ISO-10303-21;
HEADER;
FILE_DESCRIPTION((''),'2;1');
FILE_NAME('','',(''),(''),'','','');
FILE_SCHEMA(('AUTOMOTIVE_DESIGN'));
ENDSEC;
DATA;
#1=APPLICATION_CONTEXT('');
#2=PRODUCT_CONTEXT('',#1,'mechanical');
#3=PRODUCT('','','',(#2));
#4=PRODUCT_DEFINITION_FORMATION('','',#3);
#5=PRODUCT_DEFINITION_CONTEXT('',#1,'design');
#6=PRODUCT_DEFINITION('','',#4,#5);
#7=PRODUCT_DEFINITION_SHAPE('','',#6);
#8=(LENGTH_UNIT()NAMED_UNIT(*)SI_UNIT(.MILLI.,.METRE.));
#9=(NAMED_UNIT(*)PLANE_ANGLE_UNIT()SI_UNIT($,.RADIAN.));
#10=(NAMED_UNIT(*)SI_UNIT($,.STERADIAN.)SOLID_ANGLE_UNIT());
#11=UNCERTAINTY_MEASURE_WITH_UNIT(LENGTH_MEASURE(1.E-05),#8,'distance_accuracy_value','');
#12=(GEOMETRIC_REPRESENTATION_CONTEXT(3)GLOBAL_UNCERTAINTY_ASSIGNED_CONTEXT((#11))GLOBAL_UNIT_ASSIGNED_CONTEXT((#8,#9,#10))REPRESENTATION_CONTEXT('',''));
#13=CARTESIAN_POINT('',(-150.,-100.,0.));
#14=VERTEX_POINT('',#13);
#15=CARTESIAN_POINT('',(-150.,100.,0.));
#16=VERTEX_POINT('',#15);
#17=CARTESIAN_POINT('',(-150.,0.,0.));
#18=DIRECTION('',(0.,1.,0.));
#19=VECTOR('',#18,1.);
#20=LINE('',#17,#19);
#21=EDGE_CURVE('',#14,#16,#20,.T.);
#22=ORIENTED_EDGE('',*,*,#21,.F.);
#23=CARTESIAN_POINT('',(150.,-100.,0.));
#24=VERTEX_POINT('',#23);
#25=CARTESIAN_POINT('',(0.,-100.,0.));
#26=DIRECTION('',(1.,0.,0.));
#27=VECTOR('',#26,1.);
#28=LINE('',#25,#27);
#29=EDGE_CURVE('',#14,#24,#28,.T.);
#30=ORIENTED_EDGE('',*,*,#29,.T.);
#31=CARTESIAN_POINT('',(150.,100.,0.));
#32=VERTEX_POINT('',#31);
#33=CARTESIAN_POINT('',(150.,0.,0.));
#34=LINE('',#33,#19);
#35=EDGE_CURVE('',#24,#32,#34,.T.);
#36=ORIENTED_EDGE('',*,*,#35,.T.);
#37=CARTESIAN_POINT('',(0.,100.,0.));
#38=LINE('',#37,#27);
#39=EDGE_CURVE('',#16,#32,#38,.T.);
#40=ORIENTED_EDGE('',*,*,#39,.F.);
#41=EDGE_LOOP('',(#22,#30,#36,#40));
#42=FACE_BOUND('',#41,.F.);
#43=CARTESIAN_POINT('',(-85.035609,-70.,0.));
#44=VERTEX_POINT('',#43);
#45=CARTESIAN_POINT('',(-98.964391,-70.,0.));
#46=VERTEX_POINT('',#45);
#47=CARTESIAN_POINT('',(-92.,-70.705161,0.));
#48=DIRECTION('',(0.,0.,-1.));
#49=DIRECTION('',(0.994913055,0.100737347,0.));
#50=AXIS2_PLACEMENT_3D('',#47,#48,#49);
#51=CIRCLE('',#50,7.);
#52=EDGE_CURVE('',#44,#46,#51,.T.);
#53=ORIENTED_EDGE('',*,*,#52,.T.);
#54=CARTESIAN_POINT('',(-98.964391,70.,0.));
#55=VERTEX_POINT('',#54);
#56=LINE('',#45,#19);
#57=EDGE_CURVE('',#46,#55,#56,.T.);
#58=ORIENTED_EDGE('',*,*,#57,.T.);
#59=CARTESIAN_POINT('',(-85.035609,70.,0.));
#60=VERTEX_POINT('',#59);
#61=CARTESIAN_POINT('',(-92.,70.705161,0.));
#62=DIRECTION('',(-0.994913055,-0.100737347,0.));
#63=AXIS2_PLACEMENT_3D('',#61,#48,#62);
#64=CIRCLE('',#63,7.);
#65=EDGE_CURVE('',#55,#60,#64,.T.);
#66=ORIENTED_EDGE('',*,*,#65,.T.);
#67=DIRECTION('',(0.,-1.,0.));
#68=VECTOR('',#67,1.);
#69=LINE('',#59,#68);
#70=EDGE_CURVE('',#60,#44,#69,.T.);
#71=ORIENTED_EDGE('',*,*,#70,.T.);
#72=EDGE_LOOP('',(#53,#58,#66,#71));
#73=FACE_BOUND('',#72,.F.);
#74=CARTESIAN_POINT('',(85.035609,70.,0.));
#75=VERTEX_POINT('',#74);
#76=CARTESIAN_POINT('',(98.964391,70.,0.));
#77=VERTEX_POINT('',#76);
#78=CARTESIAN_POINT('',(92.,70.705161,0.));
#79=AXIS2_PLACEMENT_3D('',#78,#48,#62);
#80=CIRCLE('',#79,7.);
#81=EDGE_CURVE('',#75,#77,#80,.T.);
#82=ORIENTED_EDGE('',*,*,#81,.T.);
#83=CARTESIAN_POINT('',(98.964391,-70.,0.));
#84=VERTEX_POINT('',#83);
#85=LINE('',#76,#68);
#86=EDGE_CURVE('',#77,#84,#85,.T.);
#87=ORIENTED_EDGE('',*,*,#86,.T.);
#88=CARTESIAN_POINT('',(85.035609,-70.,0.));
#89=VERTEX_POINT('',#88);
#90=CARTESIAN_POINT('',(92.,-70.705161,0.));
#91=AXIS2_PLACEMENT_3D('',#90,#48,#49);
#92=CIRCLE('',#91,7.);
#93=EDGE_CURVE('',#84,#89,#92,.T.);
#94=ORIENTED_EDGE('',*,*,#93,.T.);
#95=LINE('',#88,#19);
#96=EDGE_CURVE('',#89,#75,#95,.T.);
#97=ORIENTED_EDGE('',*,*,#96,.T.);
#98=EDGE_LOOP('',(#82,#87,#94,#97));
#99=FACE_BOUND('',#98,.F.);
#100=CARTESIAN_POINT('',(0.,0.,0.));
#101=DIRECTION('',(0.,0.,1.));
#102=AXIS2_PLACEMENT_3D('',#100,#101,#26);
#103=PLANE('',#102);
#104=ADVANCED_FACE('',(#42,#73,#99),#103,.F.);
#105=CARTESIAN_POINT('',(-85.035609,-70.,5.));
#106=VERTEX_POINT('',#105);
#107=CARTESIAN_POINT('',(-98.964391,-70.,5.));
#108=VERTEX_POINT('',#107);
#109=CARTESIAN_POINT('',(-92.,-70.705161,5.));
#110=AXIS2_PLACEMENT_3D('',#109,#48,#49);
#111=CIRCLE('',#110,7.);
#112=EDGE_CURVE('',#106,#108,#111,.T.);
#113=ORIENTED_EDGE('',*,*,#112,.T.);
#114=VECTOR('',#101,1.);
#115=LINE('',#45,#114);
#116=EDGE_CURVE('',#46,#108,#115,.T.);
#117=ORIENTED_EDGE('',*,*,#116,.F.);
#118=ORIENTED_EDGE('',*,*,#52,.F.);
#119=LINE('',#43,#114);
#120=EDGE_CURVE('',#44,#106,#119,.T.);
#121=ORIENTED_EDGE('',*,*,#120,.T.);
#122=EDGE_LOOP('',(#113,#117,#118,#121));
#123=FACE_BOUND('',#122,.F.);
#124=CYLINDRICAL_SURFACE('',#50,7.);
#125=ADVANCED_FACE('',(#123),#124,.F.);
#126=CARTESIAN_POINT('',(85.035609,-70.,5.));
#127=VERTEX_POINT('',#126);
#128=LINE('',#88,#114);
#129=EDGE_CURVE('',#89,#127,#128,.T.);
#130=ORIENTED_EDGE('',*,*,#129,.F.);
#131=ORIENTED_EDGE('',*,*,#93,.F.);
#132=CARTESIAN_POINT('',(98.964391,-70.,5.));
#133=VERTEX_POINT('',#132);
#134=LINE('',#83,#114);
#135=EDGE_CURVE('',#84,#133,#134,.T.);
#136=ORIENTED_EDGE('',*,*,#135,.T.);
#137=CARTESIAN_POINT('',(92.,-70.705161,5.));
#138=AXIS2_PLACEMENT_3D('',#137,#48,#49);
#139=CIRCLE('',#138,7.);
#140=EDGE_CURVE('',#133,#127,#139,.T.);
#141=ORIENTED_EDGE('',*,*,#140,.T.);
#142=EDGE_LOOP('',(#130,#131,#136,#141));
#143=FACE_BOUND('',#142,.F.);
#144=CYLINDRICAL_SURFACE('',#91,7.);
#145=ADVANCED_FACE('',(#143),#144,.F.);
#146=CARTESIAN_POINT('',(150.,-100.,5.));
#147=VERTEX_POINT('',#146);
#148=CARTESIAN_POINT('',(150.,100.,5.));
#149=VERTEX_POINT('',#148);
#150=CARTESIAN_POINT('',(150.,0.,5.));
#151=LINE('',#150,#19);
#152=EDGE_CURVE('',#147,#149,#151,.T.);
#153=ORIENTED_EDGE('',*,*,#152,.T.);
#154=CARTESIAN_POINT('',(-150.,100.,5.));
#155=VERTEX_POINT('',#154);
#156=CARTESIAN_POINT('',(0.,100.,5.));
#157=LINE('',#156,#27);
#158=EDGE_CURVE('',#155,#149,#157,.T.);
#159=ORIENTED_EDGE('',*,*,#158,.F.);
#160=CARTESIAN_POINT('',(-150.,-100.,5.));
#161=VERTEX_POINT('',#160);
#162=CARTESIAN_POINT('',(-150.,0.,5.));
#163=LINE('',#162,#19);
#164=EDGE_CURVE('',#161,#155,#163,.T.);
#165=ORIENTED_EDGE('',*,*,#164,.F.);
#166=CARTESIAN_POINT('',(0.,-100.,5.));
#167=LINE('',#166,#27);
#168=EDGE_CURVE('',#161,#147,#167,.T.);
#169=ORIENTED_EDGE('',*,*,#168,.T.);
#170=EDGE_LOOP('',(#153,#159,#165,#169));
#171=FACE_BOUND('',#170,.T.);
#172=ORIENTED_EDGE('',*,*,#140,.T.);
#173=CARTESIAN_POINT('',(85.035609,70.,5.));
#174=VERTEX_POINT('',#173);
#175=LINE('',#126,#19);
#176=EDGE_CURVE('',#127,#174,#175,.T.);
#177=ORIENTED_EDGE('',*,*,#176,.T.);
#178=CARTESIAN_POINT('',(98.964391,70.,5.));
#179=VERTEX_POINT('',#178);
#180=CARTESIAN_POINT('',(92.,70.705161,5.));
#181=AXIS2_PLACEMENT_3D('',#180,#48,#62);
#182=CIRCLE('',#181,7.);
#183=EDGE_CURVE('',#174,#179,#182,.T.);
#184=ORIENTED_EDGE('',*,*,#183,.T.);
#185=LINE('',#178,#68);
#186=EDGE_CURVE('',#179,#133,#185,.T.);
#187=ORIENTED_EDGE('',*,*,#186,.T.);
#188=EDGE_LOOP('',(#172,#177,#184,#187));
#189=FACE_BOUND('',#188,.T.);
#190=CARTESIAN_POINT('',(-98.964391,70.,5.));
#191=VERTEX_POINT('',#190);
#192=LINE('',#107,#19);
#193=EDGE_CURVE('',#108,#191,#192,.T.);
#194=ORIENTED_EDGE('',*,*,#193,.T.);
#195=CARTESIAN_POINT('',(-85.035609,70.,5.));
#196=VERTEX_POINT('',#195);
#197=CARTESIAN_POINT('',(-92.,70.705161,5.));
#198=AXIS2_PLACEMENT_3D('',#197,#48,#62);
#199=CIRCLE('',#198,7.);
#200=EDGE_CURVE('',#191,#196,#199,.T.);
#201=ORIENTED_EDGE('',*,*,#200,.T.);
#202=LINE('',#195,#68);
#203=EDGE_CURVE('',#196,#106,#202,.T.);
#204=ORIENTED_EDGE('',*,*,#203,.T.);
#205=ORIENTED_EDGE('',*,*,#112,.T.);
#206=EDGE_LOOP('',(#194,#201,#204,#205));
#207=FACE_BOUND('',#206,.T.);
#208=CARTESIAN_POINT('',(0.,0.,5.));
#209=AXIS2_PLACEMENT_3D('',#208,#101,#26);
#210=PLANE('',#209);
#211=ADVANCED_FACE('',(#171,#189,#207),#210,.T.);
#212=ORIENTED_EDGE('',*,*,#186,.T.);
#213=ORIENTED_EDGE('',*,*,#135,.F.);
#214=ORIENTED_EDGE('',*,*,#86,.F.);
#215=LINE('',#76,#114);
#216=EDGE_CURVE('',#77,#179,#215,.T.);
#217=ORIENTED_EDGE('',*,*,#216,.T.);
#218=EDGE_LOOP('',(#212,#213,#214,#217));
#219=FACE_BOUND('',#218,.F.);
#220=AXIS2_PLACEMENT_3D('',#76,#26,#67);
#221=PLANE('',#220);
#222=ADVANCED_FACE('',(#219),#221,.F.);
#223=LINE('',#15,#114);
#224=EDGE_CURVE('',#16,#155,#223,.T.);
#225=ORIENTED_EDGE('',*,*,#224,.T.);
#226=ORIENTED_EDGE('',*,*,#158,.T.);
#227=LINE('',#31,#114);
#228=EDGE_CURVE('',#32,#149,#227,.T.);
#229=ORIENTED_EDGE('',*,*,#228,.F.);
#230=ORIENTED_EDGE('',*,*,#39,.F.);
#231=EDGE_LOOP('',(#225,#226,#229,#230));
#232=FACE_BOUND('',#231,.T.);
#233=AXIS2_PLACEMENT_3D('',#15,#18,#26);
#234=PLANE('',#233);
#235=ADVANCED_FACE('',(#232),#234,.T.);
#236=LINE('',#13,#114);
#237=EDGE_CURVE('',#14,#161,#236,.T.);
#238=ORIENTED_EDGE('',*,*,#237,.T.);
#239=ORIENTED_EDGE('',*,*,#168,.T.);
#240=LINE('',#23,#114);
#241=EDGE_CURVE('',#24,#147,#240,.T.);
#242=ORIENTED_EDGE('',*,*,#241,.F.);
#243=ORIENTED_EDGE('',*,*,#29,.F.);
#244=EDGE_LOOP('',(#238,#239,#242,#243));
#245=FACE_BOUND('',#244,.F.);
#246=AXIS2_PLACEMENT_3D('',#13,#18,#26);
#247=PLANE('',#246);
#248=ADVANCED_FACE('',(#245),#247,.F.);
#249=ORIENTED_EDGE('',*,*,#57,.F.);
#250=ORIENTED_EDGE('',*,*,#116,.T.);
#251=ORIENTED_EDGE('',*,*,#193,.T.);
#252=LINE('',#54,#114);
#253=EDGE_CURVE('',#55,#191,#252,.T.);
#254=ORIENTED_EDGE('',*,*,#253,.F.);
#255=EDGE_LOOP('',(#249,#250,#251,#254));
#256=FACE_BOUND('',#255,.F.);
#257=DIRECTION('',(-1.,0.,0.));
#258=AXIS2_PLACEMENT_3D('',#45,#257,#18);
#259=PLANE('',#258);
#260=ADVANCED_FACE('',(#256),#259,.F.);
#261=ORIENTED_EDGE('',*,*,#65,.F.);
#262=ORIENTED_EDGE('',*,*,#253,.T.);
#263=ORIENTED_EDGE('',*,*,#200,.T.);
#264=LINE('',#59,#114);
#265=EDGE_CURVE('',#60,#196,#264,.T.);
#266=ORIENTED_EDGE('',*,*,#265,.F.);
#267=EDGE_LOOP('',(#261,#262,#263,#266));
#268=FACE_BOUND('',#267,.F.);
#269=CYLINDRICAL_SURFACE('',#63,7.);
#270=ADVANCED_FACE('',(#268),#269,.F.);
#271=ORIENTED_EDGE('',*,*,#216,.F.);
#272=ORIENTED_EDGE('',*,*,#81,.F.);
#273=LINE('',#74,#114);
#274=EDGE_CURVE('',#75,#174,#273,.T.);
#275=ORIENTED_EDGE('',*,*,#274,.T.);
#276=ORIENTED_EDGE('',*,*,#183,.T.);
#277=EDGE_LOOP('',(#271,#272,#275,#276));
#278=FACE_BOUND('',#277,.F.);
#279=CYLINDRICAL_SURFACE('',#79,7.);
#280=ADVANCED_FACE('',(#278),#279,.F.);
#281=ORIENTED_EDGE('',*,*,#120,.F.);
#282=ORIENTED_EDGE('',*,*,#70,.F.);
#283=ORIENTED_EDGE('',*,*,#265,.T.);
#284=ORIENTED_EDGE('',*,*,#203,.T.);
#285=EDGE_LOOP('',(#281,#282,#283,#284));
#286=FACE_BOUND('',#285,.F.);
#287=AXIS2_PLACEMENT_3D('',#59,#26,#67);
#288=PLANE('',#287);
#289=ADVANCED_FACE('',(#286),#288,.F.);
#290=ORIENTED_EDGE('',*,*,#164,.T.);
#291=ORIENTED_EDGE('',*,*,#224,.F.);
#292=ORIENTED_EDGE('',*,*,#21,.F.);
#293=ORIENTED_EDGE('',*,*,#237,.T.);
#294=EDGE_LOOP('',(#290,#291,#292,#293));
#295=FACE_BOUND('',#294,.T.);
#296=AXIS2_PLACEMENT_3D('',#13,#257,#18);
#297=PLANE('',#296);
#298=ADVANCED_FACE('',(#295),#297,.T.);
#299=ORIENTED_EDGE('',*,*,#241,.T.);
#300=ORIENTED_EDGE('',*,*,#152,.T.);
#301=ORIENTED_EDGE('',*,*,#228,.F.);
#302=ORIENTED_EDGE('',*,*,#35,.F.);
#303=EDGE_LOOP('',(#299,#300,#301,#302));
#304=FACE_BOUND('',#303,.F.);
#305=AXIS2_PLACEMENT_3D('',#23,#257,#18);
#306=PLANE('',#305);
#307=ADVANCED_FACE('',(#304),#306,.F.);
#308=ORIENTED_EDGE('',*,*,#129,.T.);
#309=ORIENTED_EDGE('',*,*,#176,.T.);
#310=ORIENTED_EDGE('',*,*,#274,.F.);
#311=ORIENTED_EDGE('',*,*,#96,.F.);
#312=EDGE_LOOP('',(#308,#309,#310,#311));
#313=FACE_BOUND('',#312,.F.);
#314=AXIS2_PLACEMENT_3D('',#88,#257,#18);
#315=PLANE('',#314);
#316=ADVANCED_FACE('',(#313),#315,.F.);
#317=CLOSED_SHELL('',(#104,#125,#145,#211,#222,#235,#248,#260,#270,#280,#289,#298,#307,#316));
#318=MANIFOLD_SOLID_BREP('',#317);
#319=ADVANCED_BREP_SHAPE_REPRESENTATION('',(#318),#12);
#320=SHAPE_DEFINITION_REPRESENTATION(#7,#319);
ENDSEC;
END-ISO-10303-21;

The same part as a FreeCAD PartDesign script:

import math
import FreeCAD as App
import Part
import Sketcher

V = App.Vector
Q = App.Units.Quantity

doc = App.newDocument("Part")
params = doc.addObject("Spreadsheet::Sheet", "Params")
for row, (alias, value) in enumerate([
    ("sketch1_radius", "7 mm"),
    ("sketch1_width", "300 mm"),
    ("sketch1_height", "200 mm"),
    ("sketch1_height2", "140 mm"),
    ("pad1_length", "5 mm"),
], start=1):
    params.set(f"A{row}", alias)
    params.set(f"B{row}", "=" + value)
    params.setAlias(f"B{row}", alias)

body = doc.addObject("PartDesign::Body", "Body")

# Sketch on XY plane
sketch1 = body.newObject("Sketcher::SketchObject", "Sketch")
sketch1.AttachmentSupport = (doc.getObject("XY_Plane"), [""])
sketch1.MapMode = "FlatFace"
sketch1.addGeometry([
    Part.LineSegment(V(-150, 100, 0), V(-150, -100, 0)),  # 0
    Part.LineSegment(V(-150, -100, 0), V(150, -100, 0)),  # 1
    Part.LineSegment(V(150, -100, 0), V(150, 100, 0)),  # 2
    Part.LineSegment(V(150, 100, 0), V(-150, 100, 0)),  # 3
    Part.ArcOfCircle(Part.Circle(V(-92, 70.705161, 0), V(0, 0, 1), 7), math.radians(-5.781632), math.radians(185.781632)),  # 4
    Part.LineSegment(V(-85.035609, 70, 0), V(-85.035609, -70, 0)),  # 5
    Part.ArcOfCircle(Part.Circle(V(-92, -70.705161, 0), V(0, 0, 1), 7), math.radians(174.218368), math.radians(365.781632)),  # 6
    Part.LineSegment(V(-98.964391, -70, 0), V(-98.964391, 70, 0)),  # 7
    Part.LineSegment(V(98.964391, 70, 0), V(98.964391, -70, 0)),  # 8
    Part.ArcOfCircle(Part.Circle(V(92, -70.705161, 0), V(0, 0, 1), 7), math.radians(174.218368), math.radians(365.781632)),  # 9
    Part.LineSegment(V(85.035609, -70, 0), V(85.035609, 70, 0)),  # 10
    Part.ArcOfCircle(Part.Circle(V(92, 70.705161, 0), V(0, 0, 1), 7), math.radians(-5.781632), math.radians(185.781632)),  # 11
], False)
sketch1.addConstraint([
    Sketcher.Constraint("Coincident", 0, 2, 1, 1),
    Sketcher.Constraint("Coincident", 1, 2, 2, 1),
    Sketcher.Constraint("Coincident", 2, 2, 3, 1),
    Sketcher.Constraint("Coincident", 3, 2, 0, 1),
    Sketcher.Constraint("Coincident", 4, 1, 5, 1),
    Sketcher.Constraint("Coincident", 5, 2, 6, 2),
    Sketcher.Constraint("Coincident", 6, 1, 7, 1),
    Sketcher.Constraint("Coincident", 7, 2, 4, 2),
    Sketcher.Constraint("Coincident", 8, 2, 9, 2),
    Sketcher.Constraint("Coincident", 9, 1, 10, 1),
    Sketcher.Constraint("Coincident", 10, 2, 11, 2),
    Sketcher.Constraint("Coincident", 11, 1, 8, 1),
    Sketcher.Constraint("Vertical", 0),
    Sketcher.Constraint("Horizontal", 1),
    Sketcher.Constraint("Vertical", 2),
    Sketcher.Constraint("Horizontal", 3),
    Sketcher.Constraint("Vertical", 5),
    Sketcher.Constraint("Vertical", 7),
    Sketcher.Constraint("Vertical", 8),
    Sketcher.Constraint("Vertical", 10),
    Sketcher.Constraint("Equal", 4, 6),
    Sketcher.Constraint("Equal", 6, 9),
    Sketcher.Constraint("Equal", 9, 11),
    Sketcher.Constraint("Symmetric", 4, 3, 9, 3, -1, 1),
    Sketcher.Constraint("Symmetric", 6, 3, 11, 3, -1, 1),
    Sketcher.Constraint("Symmetric", 0, 2, 2, 2, -1, 1),
    Sketcher.Constraint("Symmetric", 6, 3, 9, 3, -2),
    Sketcher.Constraint("Horizontal", 5, 2, 6, 1),
    Sketcher.Constraint("Horizontal", 6, 1, 8, 2),
    Sketcher.Constraint("Horizontal", 8, 2, 9, 1),
    Sketcher.Constraint("Radius", 4, Q("7 mm")),
    Sketcher.Constraint("DistanceX", 1, 1, 1, 2, Q("300 mm")),
    Sketcher.Constraint("DistanceY", 0, 2, 0, 1, Q("200 mm")),
    Sketcher.Constraint("DistanceY", 5, 2, 5, 1, Q("140 mm")),
    Sketcher.Constraint("DistanceX", 4, 3, -1, 1, Q("92 mm")),
    Sketcher.Constraint("DistanceY", -1, 1, 4, 3, Q("70.705161 mm")),
])
sketch1.setExpression("Constraints[30]", "Params.sketch1_radius")
sketch1.setExpression("Constraints[31]", "Params.sketch1_width")
sketch1.setExpression("Constraints[32]", "Params.sketch1_height")
sketch1.setExpression("Constraints[33]", "Params.sketch1_height2")
pad1 = body.newObject("PartDesign::Pad", "Pad")
pad1.Profile = sketch1
pad1.setExpression("Length", "Params.pad1_length")

doc.recompute()
